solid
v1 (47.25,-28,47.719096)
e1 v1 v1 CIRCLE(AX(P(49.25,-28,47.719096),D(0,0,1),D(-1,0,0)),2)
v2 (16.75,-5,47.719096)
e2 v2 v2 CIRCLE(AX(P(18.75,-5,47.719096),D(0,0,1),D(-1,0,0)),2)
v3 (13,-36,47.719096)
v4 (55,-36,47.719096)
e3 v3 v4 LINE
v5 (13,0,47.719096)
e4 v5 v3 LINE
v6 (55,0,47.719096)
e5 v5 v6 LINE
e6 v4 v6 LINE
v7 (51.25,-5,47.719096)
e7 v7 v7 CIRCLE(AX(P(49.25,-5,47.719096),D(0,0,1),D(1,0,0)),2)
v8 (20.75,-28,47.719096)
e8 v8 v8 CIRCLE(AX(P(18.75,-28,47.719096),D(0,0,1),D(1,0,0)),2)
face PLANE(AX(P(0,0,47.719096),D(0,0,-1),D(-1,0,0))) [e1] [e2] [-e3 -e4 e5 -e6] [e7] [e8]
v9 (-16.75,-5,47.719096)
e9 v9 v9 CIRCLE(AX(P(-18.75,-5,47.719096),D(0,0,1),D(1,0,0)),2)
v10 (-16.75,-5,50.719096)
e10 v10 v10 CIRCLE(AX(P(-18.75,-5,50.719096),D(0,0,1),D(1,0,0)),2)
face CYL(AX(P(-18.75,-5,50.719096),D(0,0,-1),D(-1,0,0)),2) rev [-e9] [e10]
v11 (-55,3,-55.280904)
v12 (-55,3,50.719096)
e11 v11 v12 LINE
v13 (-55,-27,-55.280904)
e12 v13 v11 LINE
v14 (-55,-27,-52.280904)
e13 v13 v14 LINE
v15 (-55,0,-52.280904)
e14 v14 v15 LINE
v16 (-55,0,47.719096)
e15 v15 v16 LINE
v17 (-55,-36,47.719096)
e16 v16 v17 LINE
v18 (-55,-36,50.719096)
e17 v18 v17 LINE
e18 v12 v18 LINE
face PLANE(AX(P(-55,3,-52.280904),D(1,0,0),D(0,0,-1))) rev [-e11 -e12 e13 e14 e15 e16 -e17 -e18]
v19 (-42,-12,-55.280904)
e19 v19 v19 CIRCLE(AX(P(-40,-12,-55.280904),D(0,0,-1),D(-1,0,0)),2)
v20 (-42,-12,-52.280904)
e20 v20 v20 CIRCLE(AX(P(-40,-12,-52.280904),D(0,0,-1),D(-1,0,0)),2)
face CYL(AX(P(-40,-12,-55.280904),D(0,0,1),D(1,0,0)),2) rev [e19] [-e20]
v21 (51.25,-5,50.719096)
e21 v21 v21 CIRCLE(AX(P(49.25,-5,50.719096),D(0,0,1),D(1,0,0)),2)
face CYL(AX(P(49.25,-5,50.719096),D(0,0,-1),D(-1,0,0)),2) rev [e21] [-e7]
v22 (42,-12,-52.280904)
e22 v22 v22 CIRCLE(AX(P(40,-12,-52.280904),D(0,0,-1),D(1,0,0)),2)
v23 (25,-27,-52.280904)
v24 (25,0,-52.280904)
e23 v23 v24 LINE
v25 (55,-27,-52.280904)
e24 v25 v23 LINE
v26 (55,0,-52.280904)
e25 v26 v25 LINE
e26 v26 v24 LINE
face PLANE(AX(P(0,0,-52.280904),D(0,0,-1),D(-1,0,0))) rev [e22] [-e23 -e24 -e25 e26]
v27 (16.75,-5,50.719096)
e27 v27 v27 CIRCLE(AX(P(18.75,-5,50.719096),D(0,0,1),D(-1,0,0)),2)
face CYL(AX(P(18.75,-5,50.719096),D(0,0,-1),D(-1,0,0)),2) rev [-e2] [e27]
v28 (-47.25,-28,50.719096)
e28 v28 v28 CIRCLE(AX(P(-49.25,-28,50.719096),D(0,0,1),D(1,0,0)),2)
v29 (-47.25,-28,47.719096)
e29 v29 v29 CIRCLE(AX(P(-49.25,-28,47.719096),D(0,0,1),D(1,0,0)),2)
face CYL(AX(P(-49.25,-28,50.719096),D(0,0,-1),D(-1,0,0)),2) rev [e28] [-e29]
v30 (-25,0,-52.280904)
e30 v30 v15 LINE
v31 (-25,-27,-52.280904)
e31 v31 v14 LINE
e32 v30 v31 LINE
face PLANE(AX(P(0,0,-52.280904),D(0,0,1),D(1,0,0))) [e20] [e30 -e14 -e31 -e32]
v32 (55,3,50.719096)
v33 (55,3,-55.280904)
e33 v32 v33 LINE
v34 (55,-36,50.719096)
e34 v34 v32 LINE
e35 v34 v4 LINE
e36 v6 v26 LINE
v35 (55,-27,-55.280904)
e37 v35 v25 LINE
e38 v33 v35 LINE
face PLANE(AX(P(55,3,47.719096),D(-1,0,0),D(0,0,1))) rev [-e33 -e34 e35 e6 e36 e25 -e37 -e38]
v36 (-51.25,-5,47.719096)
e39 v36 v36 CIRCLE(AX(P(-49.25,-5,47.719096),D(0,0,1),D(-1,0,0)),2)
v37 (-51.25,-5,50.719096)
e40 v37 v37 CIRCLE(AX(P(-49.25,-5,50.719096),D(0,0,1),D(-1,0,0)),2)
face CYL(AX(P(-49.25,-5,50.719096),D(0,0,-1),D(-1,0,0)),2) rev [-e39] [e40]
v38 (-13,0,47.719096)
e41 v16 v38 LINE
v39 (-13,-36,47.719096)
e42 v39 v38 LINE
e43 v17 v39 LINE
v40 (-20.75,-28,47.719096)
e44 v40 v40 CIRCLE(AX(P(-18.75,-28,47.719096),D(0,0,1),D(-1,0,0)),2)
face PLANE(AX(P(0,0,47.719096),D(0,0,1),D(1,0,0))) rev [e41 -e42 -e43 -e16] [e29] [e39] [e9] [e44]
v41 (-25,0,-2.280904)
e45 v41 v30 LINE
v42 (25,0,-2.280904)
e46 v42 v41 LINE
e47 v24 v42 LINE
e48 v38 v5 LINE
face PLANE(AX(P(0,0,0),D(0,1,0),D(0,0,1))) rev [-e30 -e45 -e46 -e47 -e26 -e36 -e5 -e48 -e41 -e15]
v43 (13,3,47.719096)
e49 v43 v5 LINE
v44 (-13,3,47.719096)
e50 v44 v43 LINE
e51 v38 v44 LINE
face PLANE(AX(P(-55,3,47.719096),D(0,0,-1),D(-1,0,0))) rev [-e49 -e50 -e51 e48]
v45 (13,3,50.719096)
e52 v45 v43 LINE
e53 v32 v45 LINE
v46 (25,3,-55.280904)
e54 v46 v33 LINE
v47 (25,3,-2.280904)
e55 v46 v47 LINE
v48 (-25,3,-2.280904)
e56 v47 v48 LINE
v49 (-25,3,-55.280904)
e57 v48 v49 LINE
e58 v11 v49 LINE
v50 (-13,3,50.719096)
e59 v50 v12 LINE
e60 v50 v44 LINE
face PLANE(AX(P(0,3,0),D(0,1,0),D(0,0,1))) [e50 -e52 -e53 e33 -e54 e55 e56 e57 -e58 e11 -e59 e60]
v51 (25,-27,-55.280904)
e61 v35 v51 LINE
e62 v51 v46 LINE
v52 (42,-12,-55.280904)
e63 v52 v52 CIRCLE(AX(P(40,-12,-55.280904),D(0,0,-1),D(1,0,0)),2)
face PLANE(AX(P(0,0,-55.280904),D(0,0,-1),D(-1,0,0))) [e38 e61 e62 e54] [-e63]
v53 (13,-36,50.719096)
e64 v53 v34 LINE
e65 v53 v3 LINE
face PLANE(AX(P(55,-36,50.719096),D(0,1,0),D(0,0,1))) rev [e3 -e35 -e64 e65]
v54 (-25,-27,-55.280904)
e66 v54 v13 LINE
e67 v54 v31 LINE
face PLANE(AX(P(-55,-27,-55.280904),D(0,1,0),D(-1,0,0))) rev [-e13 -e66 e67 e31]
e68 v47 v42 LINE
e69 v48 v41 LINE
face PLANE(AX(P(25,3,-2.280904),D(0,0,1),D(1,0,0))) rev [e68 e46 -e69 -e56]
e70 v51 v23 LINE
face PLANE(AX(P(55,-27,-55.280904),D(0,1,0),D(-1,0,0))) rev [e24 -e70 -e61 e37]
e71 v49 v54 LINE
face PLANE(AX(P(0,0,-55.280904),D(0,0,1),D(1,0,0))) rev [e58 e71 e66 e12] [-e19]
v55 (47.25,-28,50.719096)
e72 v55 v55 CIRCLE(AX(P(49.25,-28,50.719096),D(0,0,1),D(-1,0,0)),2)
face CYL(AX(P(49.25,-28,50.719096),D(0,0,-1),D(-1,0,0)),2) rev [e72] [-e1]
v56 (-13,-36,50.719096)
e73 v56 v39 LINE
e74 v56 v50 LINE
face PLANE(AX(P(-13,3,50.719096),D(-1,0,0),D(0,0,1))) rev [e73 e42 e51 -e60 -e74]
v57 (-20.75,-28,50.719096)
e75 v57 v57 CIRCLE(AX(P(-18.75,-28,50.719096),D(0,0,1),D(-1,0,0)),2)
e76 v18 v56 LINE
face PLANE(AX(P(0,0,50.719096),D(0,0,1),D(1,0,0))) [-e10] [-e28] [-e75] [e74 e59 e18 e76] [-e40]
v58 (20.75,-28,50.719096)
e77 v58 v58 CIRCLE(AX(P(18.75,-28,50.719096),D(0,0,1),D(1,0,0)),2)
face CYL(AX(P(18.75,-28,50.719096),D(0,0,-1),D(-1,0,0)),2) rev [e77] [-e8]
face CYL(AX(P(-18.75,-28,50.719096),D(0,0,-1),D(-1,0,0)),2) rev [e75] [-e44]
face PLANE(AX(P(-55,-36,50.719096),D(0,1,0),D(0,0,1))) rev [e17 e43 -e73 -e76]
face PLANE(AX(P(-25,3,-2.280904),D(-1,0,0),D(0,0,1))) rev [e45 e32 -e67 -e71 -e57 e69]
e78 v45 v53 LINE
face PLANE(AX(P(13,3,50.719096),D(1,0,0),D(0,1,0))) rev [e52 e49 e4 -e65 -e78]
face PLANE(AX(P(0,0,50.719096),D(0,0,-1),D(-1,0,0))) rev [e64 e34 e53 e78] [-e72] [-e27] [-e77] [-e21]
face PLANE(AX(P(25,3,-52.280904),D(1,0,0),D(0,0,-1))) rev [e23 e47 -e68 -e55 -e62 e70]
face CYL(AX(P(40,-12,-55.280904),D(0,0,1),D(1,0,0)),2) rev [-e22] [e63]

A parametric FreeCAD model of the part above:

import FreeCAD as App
import Part
import Sketcher
Q = App.Units.Quantity


def add_polygon(sketch, points):
    """Adds a closed chain of lines whose ends are joined by coincident constraints."""
    first, n = sketch.GeometryCount, len(points)
    for a, b in zip(points, points[1:] + points[:1]):
        sketch.addGeometry(Part.LineSegment(App.Vector(*a, 0), App.Vector(*b, 0)), False)
    for i in range(n):
        sketch.addConstraint(Sketcher.Constraint("Coincident", first + i, 2, first + (i + 1) % n, 1))

doc = App.newDocument("Part")
body = doc.addObject("PartDesign::Body", "Body")

# Sketch on XZ plane
sketch1 = body.newObject("Sketcher::SketchObject", "Sketch")
sketch1.AttachmentSupport = (doc.getObject("XZ_Plane"), [""])
sketch1.MapMode = "FlatFace"
add_polygon(sketch1, [(-55, -52), (-55, 48), (55, 48), (55, -52), (25, -52), (25, -2), (-25, -2), (-25, -52)])  # lines 0-7
sketch1.addConstraint(Sketcher.Constraint("Vertical", 0))
sketch1.addConstraint(Sketcher.Constraint("Horizontal", 1))
sketch1.addConstraint(Sketcher.Constraint("Vertical", 2))
sketch1.addConstraint(Sketcher.Constraint("Horizontal", 3))
sketch1.addConstraint(Sketcher.Constraint("Vertical", 4))
sketch1.addConstraint(Sketcher.Constraint("Horizontal", 5))
sketch1.addConstraint(Sketcher.Constraint("Vertical", 6))
sketch1.addConstraint(Sketcher.Constraint("Horizontal", 7))
sketch1.addConstraint(Sketcher.Constraint("Symmetric", 3, 2, 6, 2, -2))
sketch1.addConstraint(Sketcher.Constraint("Equal", 3, 7))
sketch1.addConstraint(Sketcher.Constraint("Equal", 5, 4))
sketch1.addConstraint(Sketcher.Constraint("DistanceX", 1, 1, 1, 2, Q("110 mm")))
sketch1.addConstraint(Sketcher.Constraint("DistanceX", 3, 2, 3, 1, Q("30 mm")))
sketch1.addConstraint(Sketcher.Constraint("DistanceY", 0, 1, 0, 2, Q("100 mm")))
sketch1.addConstraint(Sketcher.Constraint("DistanceY", -1, 1, 0, 2, Q("47.719096 mm")))
pad1 = body.newObject("PartDesign::Pad", "Pad")
pad1.Profile = sketch1
pad1.Length = 3
pad1.Reversed = True

# Sketch on XY plane
sketch2 = body.newObject("Sketcher::SketchObject", "Sketch001")
sketch2.AttachmentSupport = (doc.getObject("XY_Plane"), [""])
sketch2.MapMode = "FlatFace"
sketch2.AttachmentOffset = App.Placement(App.Vector(0, 0, 47.719096), App.Rotation())
add_polygon(sketch2, [(-55, 3), (-55, -36), (-13, -36), (-13, 3)])  # lines 0-3
sketch2.addGeometry(Part.Circle(App.Vector(-49.2, -28, 0), App.Vector(0, 0, 1), 2), False)  # 4
sketch2.addGeometry(Part.Circle(App.Vector(-18.8, -28, 0), App.Vector(0, 0, 1), 2), False)  # 5
sketch2.addGeometry(Part.Circle(App.Vector(-49.2, -5, 0), App.Vector(0, 0, 1), 2), False)  # 6
sketch2.addGeometry(Part.Circle(App.Vector(-18.8, -5, 0), App.Vector(0, 0, 1), 2), False)  # 7
add_polygon(sketch2, [(13, 3), (13, -36), (55, -36), (55, 3)])  # lines 8-11
sketch2.addGeometry(Part.Circle(App.Vector(18.8, -28, 0), App.Vector(0, 0, 1), 2), False)  # 12
sketch2.addGeometry(Part.Circle(App.Vector(49.2, -28, 0), App.Vector(0, 0, 1), 2), False)  # 13
sketch2.addGeometry(Part.Circle(App.Vector(18.8, -5, 0), App.Vector(0, 0, 1), 2), False)  # 14
sketch2.addGeometry(Part.Circle(App.Vector(49.2, -5, 0), App.Vector(0, 0, 1), 2), False)  # 15
sketch2.addConstraint(Sketcher.Constraint("Vertical", 0))
sketch2.addConstraint(Sketcher.Constraint("Horizontal", 1))
sketch2.addConstraint(Sketcher.Constraint("Vertical", 2))
sketch2.addConstraint(Sketcher.Constraint("Horizontal", 3))
sketch2.addConstraint(Sketcher.Constraint("Vertical", 8))
sketch2.addConstraint(Sketcher.Constraint("Horizontal", 9))
sketch2.addConstraint(Sketcher.Constraint("Vertical", 10))
sketch2.addConstraint(Sketcher.Constraint("Horizontal", 11))
sketch2.addConstraint(Sketcher.Constraint("Equal", 4, 5))
sketch2.addConstraint(Sketcher.Constraint("Equal", 5, 6))
sketch2.addConstraint(Sketcher.Constraint("Equal", 6, 7))
sketch2.addConstraint(Sketcher.Constraint("Equal", 7, 12))
sketch2.addConstraint(Sketcher.Constraint("Equal", 12, 13))
sketch2.addConstraint(Sketcher.Constraint("Equal", 13, 14))
sketch2.addConstraint(Sketcher.Constraint("Equal", 14, 15))
sketch2.addConstraint(Sketcher.Constraint("Symmetric", 5, 3, 12, 3, -2))
sketch2.addConstraint(Sketcher.Constraint("Symmetric", 4, 3, 13, 3, -2))
sketch2.addConstraint(Sketcher.Constraint("Symmetric", 7, 3, 14, 3, -2))
sketch2.addConstraint(Sketcher.Constraint("Symmetric", 6, 3, 15, 3, -2))
sketch2.addConstraint(Sketcher.Constraint("Symmetric", 1, 2, 8, 2, -2))
sketch2.addConstraint(Sketcher.Constraint("Symmetric", 3, 2, 10, 2, -2))
sketch2.addConstraint(Sketcher.Constraint("Horizontal", 4, 3, 5, 3))
sketch2.addConstraint(Sketcher.Constraint("Horizontal", 6, 3, 7, 3))
sketch2.addConstraint(Sketcher.Constraint("Vertical", 4, 3, 6, 3))
sketch2.addConstraint(Sketcher.Constraint("Vertical", 5, 3, 7, 3))
sketch2.addConstraint(Sketcher.Constraint("Diameter", 4, Q("4 mm")))
sketch2.addConstraint(Sketcher.Constraint("DistanceX", 1, 1, 1, 2, Q("42 mm")))
sketch2.addConstraint(Sketcher.Constraint("DistanceY", 0, 2, 0, 1, Q("39 mm")))
sketch2.addConstraint(Sketcher.Constraint("DistanceY", 4, 3, -1, 1, Q("28 mm")))
sketch2.addConstraint(Sketcher.Constraint("DistanceY", 6, 3, -1, 1, Q("5 mm")))
sketch2.addConstraint(Sketcher.Constraint("DistanceX", 0, 2, -1, 1, Q("55 mm")))
sketch2.addConstraint(Sketcher.Constraint("DistanceY", 0, 2, -1, 1, Q("36 mm")))
sketch2.addConstraint(Sketcher.Constraint("DistanceX", 4, 3, 12, 3, Q("68 mm")))
sketch2.addConstraint(Sketcher.Constraint("DistanceX", 4, 3, 5, 3, Q("30.5 mm")))
pad2 = body.newObject("PartDesign::Pad", "Pad001")
pad2.Profile = sketch2
pad2.Length = 3

# Sketch on XY plane
sketch3 = body.newObject("Sketcher::SketchObject", "Sketch002")
sketch3.AttachmentSupport = (doc.getObject("XY_Plane"), [""])
sketch3.MapMode = "FlatFace"
sketch3.AttachmentOffset = App.Placement(App.Vector(0, 0, -52.280904), App.Rotation())
add_polygon(sketch3, [(-25, 3), (-25, -27), (-55, -27), (-55, 3)])  # lines 0-3
sketch3.addGeometry(Part.Circle(App.Vector(-40, -12, 0), App.Vector(0, 0, 1), 2), False)  # 4
add_polygon(sketch3, [(55, 3), (55, -27), (25, -27), (25, 3)])  # lines 5-8
sketch3.addGeometry(Part.Circle(App.Vector(40, -12, 0), App.Vector(0, 0, 1), 2), False)  # 9
sketch3.addConstraint(Sketcher.Constraint("Vertical", 0))
sketch3.addConstraint(Sketcher.Constraint("Horizontal", 1))
sketch3.addConstraint(Sketcher.Constraint("Vertical", 2))
sketch3.addConstraint(Sketcher.Constraint("Horizontal", 3))
sketch3.addConstraint(Sketcher.Constraint("Vertical", 5))
sketch3.addConstraint(Sketcher.Constraint("Horizontal", 6))
sketch3.addConstraint(Sketcher.Constraint("Vertical", 7))
sketch3.addConstraint(Sketcher.Constraint("Horizontal", 8))
sketch3.addConstraint(Sketcher.Constraint("Equal", 4, 9))
sketch3.addConstraint(Sketcher.Constraint("Symmetric", 4, 3, 9, 3, -2))
sketch3.addConstraint(Sketcher.Constraint("Symmetric", 1, 2, 5, 2, -2))
sketch3.addConstraint(Sketcher.Constraint("Symmetric", 3, 2, 7, 2, -2))
sketch3.addConstraint(Sketcher.Constraint("Equal", 8, 0))
sketch3.addConstraint(Sketcher.Constraint("Diameter", 4, Q("4 mm")))
sketch3.addConstraint(Sketcher.Constraint("DistanceX", 1, 2, 1, 1, Q("30 mm")))
sketch3.addConstraint(Sketcher.Constraint("DistanceX", 4, 3, -1, 1, Q("40 mm")))
sketch3.addConstraint(Sketcher.Constraint("DistanceY", 4, 3, -1, 1, Q("12 mm")))
sketch3.addConstraint(Sketcher.Constraint("DistanceX", 0, 2, -1, 1, Q("25 mm")))
sketch3.addConstraint(Sketcher.Constraint("DistanceY", 0, 2, -1, 1, Q("27 mm")))
pad3 = body.newObject("PartDesign::Pad", "Pad002")
pad3.Profile = sketch3
pad3.Length = 3
pad3.Reversed = True

doc.recompute()
